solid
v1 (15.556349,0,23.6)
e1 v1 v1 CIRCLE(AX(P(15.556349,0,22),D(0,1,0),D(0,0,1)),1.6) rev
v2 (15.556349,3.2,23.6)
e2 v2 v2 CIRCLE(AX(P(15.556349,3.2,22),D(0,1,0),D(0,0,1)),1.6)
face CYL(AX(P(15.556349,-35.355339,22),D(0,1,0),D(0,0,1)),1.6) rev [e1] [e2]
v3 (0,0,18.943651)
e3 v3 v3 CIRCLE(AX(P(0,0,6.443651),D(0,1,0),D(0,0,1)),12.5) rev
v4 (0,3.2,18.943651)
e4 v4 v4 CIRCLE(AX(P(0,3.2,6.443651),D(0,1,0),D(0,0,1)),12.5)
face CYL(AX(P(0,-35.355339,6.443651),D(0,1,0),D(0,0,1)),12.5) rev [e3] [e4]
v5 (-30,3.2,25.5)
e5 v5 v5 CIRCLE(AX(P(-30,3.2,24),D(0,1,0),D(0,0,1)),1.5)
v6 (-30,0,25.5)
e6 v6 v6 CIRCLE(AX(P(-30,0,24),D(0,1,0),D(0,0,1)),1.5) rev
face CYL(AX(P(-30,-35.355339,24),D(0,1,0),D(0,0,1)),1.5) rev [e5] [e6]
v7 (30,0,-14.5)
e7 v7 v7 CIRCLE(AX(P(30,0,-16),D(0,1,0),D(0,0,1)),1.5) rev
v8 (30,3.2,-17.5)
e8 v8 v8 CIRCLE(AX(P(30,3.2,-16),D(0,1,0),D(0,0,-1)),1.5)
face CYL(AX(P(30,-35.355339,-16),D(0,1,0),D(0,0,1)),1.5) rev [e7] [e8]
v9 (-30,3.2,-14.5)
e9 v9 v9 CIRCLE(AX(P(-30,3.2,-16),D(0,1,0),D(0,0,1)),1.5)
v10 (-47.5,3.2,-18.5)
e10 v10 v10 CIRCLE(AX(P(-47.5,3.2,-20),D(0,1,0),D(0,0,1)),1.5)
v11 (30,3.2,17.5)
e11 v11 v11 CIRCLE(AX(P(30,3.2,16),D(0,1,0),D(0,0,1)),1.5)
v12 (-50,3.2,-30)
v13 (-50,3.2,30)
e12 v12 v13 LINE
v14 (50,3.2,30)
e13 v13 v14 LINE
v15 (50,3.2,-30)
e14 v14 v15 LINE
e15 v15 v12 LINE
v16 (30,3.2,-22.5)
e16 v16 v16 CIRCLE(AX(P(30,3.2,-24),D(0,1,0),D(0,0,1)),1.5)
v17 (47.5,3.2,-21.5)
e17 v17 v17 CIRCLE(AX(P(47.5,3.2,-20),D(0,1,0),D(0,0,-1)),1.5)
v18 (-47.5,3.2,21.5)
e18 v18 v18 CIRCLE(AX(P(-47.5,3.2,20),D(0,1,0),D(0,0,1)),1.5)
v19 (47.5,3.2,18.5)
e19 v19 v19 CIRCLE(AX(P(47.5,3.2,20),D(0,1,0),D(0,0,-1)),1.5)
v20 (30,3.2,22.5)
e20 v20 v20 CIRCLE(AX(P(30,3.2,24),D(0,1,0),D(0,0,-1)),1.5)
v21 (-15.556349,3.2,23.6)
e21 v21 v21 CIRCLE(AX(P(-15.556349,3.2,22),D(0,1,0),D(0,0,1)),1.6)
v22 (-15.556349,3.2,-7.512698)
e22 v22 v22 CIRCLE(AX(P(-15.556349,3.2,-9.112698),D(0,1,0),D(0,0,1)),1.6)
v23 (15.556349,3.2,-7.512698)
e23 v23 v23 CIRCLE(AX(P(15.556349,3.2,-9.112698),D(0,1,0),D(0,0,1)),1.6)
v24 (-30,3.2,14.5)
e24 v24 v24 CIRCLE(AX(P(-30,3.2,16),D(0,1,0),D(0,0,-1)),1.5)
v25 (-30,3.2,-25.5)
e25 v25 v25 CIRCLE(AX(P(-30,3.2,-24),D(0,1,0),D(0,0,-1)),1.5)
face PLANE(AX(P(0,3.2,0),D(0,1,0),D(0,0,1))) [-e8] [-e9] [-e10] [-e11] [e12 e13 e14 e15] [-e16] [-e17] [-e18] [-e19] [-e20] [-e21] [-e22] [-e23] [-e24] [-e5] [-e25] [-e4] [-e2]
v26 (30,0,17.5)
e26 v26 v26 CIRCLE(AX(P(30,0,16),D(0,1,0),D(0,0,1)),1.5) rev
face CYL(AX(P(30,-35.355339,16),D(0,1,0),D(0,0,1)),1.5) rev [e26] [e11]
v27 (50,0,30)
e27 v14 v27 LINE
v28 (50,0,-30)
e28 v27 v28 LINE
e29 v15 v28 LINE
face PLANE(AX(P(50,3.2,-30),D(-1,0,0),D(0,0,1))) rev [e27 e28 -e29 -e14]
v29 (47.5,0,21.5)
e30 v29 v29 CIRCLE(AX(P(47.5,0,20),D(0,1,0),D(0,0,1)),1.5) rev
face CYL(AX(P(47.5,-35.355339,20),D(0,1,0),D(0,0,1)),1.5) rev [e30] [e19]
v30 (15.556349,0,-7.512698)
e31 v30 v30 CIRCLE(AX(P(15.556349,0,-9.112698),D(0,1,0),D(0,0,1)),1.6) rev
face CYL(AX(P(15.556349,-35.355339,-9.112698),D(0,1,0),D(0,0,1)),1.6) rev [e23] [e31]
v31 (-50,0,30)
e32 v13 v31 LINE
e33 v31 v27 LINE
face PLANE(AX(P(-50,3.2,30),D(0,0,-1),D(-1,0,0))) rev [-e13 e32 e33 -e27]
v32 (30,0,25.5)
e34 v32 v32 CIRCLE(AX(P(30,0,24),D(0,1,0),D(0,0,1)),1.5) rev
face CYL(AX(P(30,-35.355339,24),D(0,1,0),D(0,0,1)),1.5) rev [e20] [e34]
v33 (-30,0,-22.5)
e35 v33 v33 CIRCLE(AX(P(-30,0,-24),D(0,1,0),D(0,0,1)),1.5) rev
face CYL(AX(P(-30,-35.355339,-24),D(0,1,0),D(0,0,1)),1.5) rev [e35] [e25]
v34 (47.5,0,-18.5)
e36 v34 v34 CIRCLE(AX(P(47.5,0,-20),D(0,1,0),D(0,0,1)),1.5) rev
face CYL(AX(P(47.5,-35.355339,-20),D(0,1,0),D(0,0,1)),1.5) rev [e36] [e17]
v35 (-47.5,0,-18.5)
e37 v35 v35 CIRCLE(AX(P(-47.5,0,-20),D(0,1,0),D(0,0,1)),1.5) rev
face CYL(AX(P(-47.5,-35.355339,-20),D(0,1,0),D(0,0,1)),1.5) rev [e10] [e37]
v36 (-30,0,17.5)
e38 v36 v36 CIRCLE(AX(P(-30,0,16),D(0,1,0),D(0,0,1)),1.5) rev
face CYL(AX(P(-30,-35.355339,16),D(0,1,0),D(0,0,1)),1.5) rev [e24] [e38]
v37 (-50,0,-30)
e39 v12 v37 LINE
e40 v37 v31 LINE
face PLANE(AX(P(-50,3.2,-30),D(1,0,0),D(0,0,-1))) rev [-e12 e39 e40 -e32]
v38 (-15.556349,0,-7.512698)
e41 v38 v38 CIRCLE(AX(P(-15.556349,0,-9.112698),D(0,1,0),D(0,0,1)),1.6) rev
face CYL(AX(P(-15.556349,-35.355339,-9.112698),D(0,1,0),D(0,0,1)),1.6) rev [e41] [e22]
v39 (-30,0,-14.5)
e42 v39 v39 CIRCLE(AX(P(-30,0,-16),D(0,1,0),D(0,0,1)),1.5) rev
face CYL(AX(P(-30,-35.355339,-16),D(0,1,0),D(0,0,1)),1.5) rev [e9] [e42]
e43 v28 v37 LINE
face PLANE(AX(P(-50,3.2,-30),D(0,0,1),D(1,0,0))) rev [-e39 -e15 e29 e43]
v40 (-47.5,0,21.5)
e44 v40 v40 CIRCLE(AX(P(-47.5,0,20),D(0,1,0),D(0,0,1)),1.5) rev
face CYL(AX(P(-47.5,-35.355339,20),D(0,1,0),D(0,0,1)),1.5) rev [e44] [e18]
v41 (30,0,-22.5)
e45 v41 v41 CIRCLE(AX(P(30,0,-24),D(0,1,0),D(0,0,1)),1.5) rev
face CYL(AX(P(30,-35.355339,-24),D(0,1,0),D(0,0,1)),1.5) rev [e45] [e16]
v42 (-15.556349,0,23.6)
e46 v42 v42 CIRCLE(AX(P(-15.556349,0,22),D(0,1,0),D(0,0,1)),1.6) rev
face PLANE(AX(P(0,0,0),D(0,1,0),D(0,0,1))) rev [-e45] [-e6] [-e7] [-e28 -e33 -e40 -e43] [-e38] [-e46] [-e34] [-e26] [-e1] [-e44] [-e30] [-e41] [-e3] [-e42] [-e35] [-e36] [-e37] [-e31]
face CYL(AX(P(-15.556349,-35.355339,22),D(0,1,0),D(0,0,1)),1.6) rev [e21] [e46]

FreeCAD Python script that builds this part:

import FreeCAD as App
import Part
import Sketcher
from FreeCAD import Vector
Q = App.Units.Quantity

doc = App.newDocument("Part")
body = doc.addObject("PartDesign::Body", "Body")

# Sketch on XZ plane
sketch1 = doc.addObject("Sketcher::SketchObject", "Sketch")
body.addObject(sketch1)
sketch1.AttachmentSupport = (doc.XZ_Plane, [""])
sketch1.MapMode = "FlatFace"
sketch1.addGeometry([
    Part.LineSegment(Vector(-50, -30, 0), Vector(-50, 30, 0)),
    Part.LineSegment(Vector(-50, 30, 0), Vector(50, 30, 0)),
    Part.LineSegment(Vector(50, 30, 0), Vector(50, -30, 0)),
    Part.LineSegment(Vector(50, -30, 0), Vector(-50, -30, 0)),
], False)
sketch1.addConstraint([
    Sketcher.Constraint("Coincident", 0, 2, 1, 1),
    Sketcher.Constraint("Coincident", 1, 2, 2, 1),
    Sketcher.Constraint("Coincident", 2, 2, 3, 1),
    Sketcher.Constraint("Coincident", 3, 2, 0, 1),
    Sketcher.Constraint("Vertical", 0),
    Sketcher.Constraint("Horizontal", 1),
    Sketcher.Constraint("Vertical", 2),
    Sketcher.Constraint("Horizontal", 3),
    Sketcher.Constraint("Symmetric", 0, 2, 2, 2, -1, 1),
    Sketcher.Constraint("DistanceX", 1, 1, 1, 2, Q("100 mm")),
    Sketcher.Constraint("DistanceY", 0, 1, 0, 2, Q("60 mm")),
])
pad1 = doc.addObject("PartDesign::Pad", "Pad")
body.addObject(pad1)
pad1.Profile = sketch1
pad1.Length = 3.2
pad1.Reversed = True

# Sketch on XZ plane
sketch2 = doc.addObject("Sketcher::SketchObject", "Sketch001")
body.addObject(sketch2)
sketch2.AttachmentSupport = (doc.XZ_Plane, [""])
sketch2.MapMode = "FlatFace"
sketch2.AttachmentOffset = App.Placement(Vector(0, 0, -3.2), App.Rotation())
sketch2.addGeometry([
    Part.Circle(Vector(0, 6.443651, 0), Vector(0, 0, 1), 12.5),  # 0
    Part.Circle(Vector(15.556349, 22, 0), Vector(0, 0, 1), 1.6),  # 1
    Part.Circle(Vector(15.556349, -9.112698, 0), Vector(0, 0, 1), 1.6),  # 2
    Part.Circle(Vector(-15.556349, -9.112698, 0), Vector(0, 0, 1), 1.6),  # 3
    Part.Circle(Vector(-15.556349, 22, 0), Vector(0, 0, 1), 1.6),  # 4
    Part.Circle(Vector(-47.5, -20, 0), Vector(0, 0, 1), 1.5),  # 5
    Part.Circle(Vector(-47.5, 20, 0), Vector(0, 0, 1), 1.5),  # 6
    Part.Circle(Vector(47.5, 20, 0), Vector(0, 0, 1), 1.5),  # 7
    Part.Circle(Vector(47.5, -20, 0), Vector(0, 0, 1), 1.5),  # 8
    Part.Circle(Vector(-30, 24, 0), Vector(0, 0, 1), 1.5),  # 9
    Part.Circle(Vector(-30, 16, 0), Vector(0, 0, 1), 1.5),  # 10
    Part.Circle(Vector(-30, -24, 0), Vector(0, 0, 1), 1.5),  # 11
    Part.Circle(Vector(-30, -16, 0), Vector(0, 0, 1), 1.5),  # 12
    Part.Circle(Vector(30, 24, 0), Vector(0, 0, 1), 1.5),  # 13
    Part.Circle(Vector(30, 16, 0), Vector(0, 0, 1), 1.5),  # 14
    Part.Circle(Vector(30, -24, 0), Vector(0, 0, 1), 1.5),  # 15
    Part.Circle(Vector(30, -16, 0), Vector(0, 0, 1), 1.5),  # 16
], False)
sketch2.addConstraint([
    Sketcher.Constraint("Equal", 1, 2),
    Sketcher.Constraint("Equal", 2, 3),
    Sketcher.Constraint("Equal", 3, 4),
    Sketcher.Constraint("Equal", 5, 6),
    Sketcher.Constraint("Equal", 6, 7),
    Sketcher.Constraint("Equal", 7, 8),
    Sketcher.Constraint("Equal", 8, 9),
    Sketcher.Constraint("Equal", 9, 10),
    Sketcher.Constraint("Equal", 10, 11),
    Sketcher.Constraint("Equal", 11, 12),
    Sketcher.Constraint("Equal", 12, 13),
    Sketcher.Constraint("Equal", 13, 14),
    Sketcher.Constraint("Equal", 14, 15),
    Sketcher.Constraint("Equal", 15, 16),
    Sketcher.Constraint("Symmetric", 5, 3, 7, 3, -1, 1),
    Sketcher.Constraint("Symmetric", 6, 3, 8, 3, -1, 1),
    Sketcher.Constraint("Symmetric", 11, 3, 13, 3, -1, 1),
    Sketcher.Constraint("Symmetric", 12, 3, 14, 3, -1, 1),
    Sketcher.Constraint("Symmetric", 9, 3, 15, 3, -1, 1),
    Sketcher.Constraint("Symmetric", 10, 3, 16, 3, -1, 1),
    Sketcher.Constraint("Symmetric", 2, 3, 3, 3, -2),
    Sketcher.Constraint("Symmetric", 1, 3, 4, 3, -2),
    Sketcher.Constraint("Symmetric", 6, 3, 7, 3, -2),
    Sketcher.Constraint("Symmetric", 9, 3, 13, 3, -2),
    Sketcher.Constraint("Symmetric", 10, 3, 14, 3, -2),
    Sketcher.Constraint("PointOnObject", 0, 3, -2),
    Sketcher.Constraint("Vertical", 1, 3, 2, 3),
    Sketcher.Constraint("Vertical", 9, 3, 10, 3),
    Sketcher.Constraint("Diameter", 0, Q("25 mm")),
    Sketcher.Constraint("Diameter", 5, Q("3 mm")),
    Sketcher.Constraint("Diameter", 1, Q("3.2 mm")),
    Sketcher.Constraint("DistanceY", -1, 1, 1, 3, Q("22 mm")),
    Sketcher.Constraint("DistanceY", 5, 3, -1, 1, Q("20 mm")),
    Sketcher.Constraint("DistanceX", 9, 3, -1, 1, Q("30 mm")),
    Sketcher.Constraint("DistanceY", -1, 1, 9, 3, Q("24 mm")),
    Sketcher.Constraint("DistanceY", -1, 1, 10, 3, Q("16 mm")),
    Sketcher.Constraint("DistanceX", 5, 3, -1, 1, Q("47.5 mm")),
    Sketcher.Constraint("DistanceY", 2, 3, -1, 1, Q("9.112698 mm")),
    Sketcher.Constraint("DistanceX", 3, 3, 2, 3, Q("31.112698 mm")),
    Sketcher.Constraint("DistanceY", -1, 1, 0, 3, Q("6.443651 mm")),
])
pocket1 = doc.addObject("PartDesign::Pocket", "Pocket")
body.addObject(pocket1)
pocket1.Profile = sketch2
pocket1.Length = 3.2
pocket1.Reversed = True

doc.recompute()
